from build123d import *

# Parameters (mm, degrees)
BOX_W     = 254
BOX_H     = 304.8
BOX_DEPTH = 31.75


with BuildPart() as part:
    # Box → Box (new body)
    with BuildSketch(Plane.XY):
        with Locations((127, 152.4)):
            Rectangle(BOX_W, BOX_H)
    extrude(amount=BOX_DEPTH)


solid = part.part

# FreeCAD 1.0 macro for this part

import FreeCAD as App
import Part
import Sketcher
Q = App.Units.Quantity

doc = App.newDocument("Part")
params = doc.addObject("Spreadsheet::Sheet", "Params")
for row, (alias, value) in enumerate([
    ("sketch1_width", "10 in"),
    ("sketch1_height", "12 in"),
    ("pad1_length", "1.25 in"),
], start=1):
    params.set(f"A{row}", alias)
    params.set(f"B{row}", "=" + value)
    params.setAlias(f"B{row}", alias)

body = doc.addObject("PartDesign::Body", "Body")

# Sketch on XY plane
sketch1 = body.newObject("Sketcher::SketchObject", "Sketch")
sketch1.AttachmentSupport = (doc.getObject("XY_Plane"), [""])
sketch1.MapMode = "FlatFace"
sketch1.addGeometry([
    Part.LineSegment(App.Vector(0, 305, 0), App.Vector(0, 0, 0)),
    Part.LineSegment(App.Vector(0, 0, 0), App.Vector(254, 0, 0)),
    Part.LineSegment(App.Vector(254, 0, 0), App.Vector(254, 305, 0)),
    Part.LineSegment(App.Vector(254, 305, 0), App.Vector(0, 305, 0)),
], False)
sketch1.addConstraint([
    Sketcher.Constraint("Coincident", 0, 2, 1, 1),
    Sketcher.Constraint("Coincident", 1, 2, 2, 1),
    Sketcher.Constraint("Coincident", 2, 2, 3, 1),
    Sketcher.Constraint("Coincident", 3, 2, 0, 1),
    Sketcher.Constraint("Vertical", 0),
    Sketcher.Constraint("Horizontal", 1),
    Sketcher.Constraint("Vertical", 2),
    Sketcher.Constraint("Horizontal", 3),
    Sketcher.Constraint("Coincident", 0, 2, -1, 1),
    Sketcher.Constraint("DistanceX", 1, 1, 1, 2, Q("10 in")),
    Sketcher.Constraint("DistanceY", 0, 2, 0, 1, Q("12 in")),
])
sketch1.setExpression("Constraints[9]", "Params.sketch1_width")
sketch1.setExpression("Constraints[10]", "Params.sketch1_height")
pad1 = body.newObject("PartDesign::Pad", "Pad")
pad1.Profile = sketch1
pad1.setExpression("Length", "Params.pad1_length")

doc.recompute()
